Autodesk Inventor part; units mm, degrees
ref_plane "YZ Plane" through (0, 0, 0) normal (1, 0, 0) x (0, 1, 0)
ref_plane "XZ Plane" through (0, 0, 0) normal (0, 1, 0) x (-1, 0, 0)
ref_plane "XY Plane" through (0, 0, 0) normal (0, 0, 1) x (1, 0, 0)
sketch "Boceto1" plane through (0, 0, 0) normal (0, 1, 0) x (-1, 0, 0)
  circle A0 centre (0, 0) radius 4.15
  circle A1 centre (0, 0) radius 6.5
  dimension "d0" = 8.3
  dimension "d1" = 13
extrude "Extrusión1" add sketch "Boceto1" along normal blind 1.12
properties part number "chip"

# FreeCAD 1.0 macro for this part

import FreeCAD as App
import Part
import Sketcher
Q = App.Units.Quantity

doc = App.newDocument("Part")
body = doc.addObject("PartDesign::Body", "Body")

sketch1 = body.newObject("Sketcher::SketchObject", "Sketch")
sketch1.AttachmentSupport = (doc.getObject("XZ_Plane"), [""])
sketch1.MapMode = "FlatFace"
sketch1.addGeometry(Part.Circle(App.Vector(0, 0, 0), App.Vector(0, 0, 1), 6.5), False)
sketch1.addGeometry(Part.Circle(App.Vector(0, 0, 0), App.Vector(0, 0, 1), 4.2), False)
sketch1.addConstraint(Sketcher.Constraint("Coincident", 0, 3, -1, 1))
sketch1.addConstraint(Sketcher.Constraint("Coincident", 1, 3, -1, 1))
sketch1.addConstraint(Sketcher.Constraint("Diameter", 0, Q("13 mm")))
sketch1.addConstraint(Sketcher.Constraint("Diameter", 1, Q("8.3 mm")))
pad1 = body.newObject("PartDesign::Pad", "Pad")
pad1.Profile = sketch1
pad1.Length = 1.12
pad1.Reversed = True

doc.recompute()
